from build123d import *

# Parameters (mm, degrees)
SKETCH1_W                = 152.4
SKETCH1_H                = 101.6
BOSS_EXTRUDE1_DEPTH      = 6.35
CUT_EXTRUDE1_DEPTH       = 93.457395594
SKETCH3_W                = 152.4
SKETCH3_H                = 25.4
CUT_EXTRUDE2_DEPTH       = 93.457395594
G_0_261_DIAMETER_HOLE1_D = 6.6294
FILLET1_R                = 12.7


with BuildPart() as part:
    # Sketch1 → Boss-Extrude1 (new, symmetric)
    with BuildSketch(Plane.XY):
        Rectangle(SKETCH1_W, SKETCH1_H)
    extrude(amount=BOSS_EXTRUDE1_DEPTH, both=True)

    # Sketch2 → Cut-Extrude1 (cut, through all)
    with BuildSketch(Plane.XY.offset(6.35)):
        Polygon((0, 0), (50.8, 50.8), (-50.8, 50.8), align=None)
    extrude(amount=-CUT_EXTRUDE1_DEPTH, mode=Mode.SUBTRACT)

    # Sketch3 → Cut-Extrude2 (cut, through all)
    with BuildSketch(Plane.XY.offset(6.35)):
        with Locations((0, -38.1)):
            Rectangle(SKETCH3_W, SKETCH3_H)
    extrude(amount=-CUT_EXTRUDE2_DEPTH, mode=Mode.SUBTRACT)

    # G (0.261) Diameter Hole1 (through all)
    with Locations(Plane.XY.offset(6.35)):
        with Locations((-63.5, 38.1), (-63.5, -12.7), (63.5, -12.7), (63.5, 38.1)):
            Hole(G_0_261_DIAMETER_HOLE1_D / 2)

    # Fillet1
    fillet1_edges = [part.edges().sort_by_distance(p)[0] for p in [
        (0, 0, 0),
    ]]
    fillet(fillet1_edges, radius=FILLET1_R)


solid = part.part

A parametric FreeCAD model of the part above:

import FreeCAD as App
import Part
import Sketcher
Q = App.Units.Quantity


def edges_at(feature, points):
    """Names of the edges that pass closest to the given points."""
    edges = feature.Shape.Edges
    near = lambda p: min(range(len(edges)), key=lambda i: edges[i].distToShape(Part.Vertex(*p))[0])
    return sorted({f"Edge{near(p) + 1}" for p in points})

doc = App.newDocument("Part")
body = doc.addObject("PartDesign::Body", "Body")

# Sketch on XY plane
sketch1 = body.newObject("Sketcher::SketchObject", "Sketch")
sketch1.AttachmentSupport = (doc.getObject("XY_Plane"), [""])
sketch1.MapMode = "FlatFace"
sketch1.addGeometry(Part.LineSegment(App.Vector(-76.2, 50.8, 0), App.Vector(-76.2, -50.8, 0)), False)
sketch1.addGeometry(Part.LineSegment(App.Vector(-76.2, -50.8, 0), App.Vector(76.2, -50.8, 0)), False)
sketch1.addGeometry(Part.LineSegment(App.Vector(76.2, -50.8, 0), App.Vector(76.2, 50.8, 0)), False)
sketch1.addGeometry(Part.LineSegment(App.Vector(76.2, 50.8, 0), App.Vector(-76.2, 50.8, 0)), False)
sketch1.addConstraint(Sketcher.Constraint("Coincident", 0, 2, 1, 1))
sketch1.addConstraint(Sketcher.Constraint("Coincident", 1, 2, 2, 1))
sketch1.addConstraint(Sketcher.Constraint("Coincident", 2, 2, 3, 1))
sketch1.addConstraint(Sketcher.Constraint("Coincident", 3, 2, 0, 1))
sketch1.addConstraint(Sketcher.Constraint("Vertical", 0))
sketch1.addConstraint(Sketcher.Constraint("Horizontal", 1))
sketch1.addConstraint(Sketcher.Constraint("Vertical", 2))
sketch1.addConstraint(Sketcher.Constraint("Horizontal", 3))
sketch1.addConstraint(Sketcher.Constraint("Symmetric", 0, 2, 2, 2, -1, 1))
sketch1.addConstraint(Sketcher.Constraint("DistanceX", 1, 1, 1, 2, Q("6 in")))
sketch1.addConstraint(Sketcher.Constraint("DistanceY", 0, 2, 0, 1, Q("4 in")))
pad1 = body.newObject("PartDesign::Pad", "Pad")
pad1.Profile = sketch1
pad1.Length = Q("0.5 in")
pad1.Midplane = True

# Sketch on XY plane
sketch2 = body.newObject("Sketcher::SketchObject", "Sketch001")
sketch2.AttachmentSupport = (doc.getObject("XY_Plane"), [""])
sketch2.MapMode = "FlatFace"
sketch2.AttachmentOffset = App.Placement(App.Vector(0, 0, 0.25 * 25.4), App.Rotation())
sketch2.addGeometry(Part.LineSegment(App.Vector(0, 0, 0), App.Vector(50.8, 50.8, 0)), False)
sketch2.addGeometry(Part.LineSegment(App.Vector(50.8, 50.8, 0), App.Vector(-50.8, 50.8, 0)), False)
sketch2.addGeometry(Part.LineSegment(App.Vector(-50.8, 50.8, 0), App.Vector(0, 0, 0)), False)
sketch2.addConstraint(Sketcher.Constraint("Coincident", 0, 2, 1, 1))
sketch2.addConstraint(Sketcher.Constraint("Coincident", 1, 2, 2, 1))
sketch2.addConstraint(Sketcher.Constraint("Coincident", 2, 2, 0, 1))
sketch2.addConstraint(Sketcher.Constraint("Horizontal", 1))
sketch2.addConstraint(Sketcher.Constraint("Coincident", 2, 2, -1, 1))
sketch2.addConstraint(Sketcher.Constraint("Perpendicular", 0, 2))
sketch2.addConstraint(Sketcher.Constraint("Equal", 0, 2))
sketch2.addConstraint(Sketcher.Constraint("DistanceX", 1, 2, 1, 1, Q("4 in")))
pocket1 = body.newObject("PartDesign::Pocket", "Pocket")
pocket1.Profile = sketch2
pocket1.Type = "ThroughAll"

# Sketch on XY plane
sketch3 = body.newObject("Sketcher::SketchObject", "Sketch002")
sketch3.AttachmentSupport = (doc.getObject("XY_Plane"), [""])
sketch3.MapMode = "FlatFace"
sketch3.AttachmentOffset = App.Placement(App.Vector(0, 0, 0.25 * 25.4), App.Rotation())
sketch3.addGeometry(Part.LineSegment(App.Vector(-76.2, -25.4, 0), App.Vector(-76.2, -50.8, 0)), False)
sketch3.addGeometry(Part.LineSegment(App.Vector(-76.2, -50.8, 0), App.Vector(76.2, -50.8, 0)), False)
sketch3.addGeometry(Part.LineSegment(App.Vector(76.2, -50.8, 0), App.Vector(76.2, -25.4, 0)), False)
sketch3.addGeometry(Part.LineSegment(App.Vector(76.2, -25.4, 0), App.Vector(-76.2, -25.4, 0)), False)
sketch3.addConstraint(Sketcher.Constraint("Coincident", 0, 2, 1, 1))
sketch3.addConstraint(Sketcher.Constraint("Coincident", 1, 2, 2, 1))
sketch3.addConstraint(Sketcher.Constraint("Coincident", 2, 2, 3, 1))
sketch3.addConstraint(Sketcher.Constraint("Coincident", 3, 2, 0, 1))
sketch3.addConstraint(Sketcher.Constraint("Vertical", 0))
sketch3.addConstraint(Sketcher.Constraint("Horizontal", 1))
sketch3.addConstraint(Sketcher.Constraint("Vertical", 2))
sketch3.addConstraint(Sketcher.Constraint("Horizontal", 3))
sketch3.addConstraint(Sketcher.Constraint("DistanceX", 1, 1, 1, 2, Q("6 in")))
sketch3.addConstraint(Sketcher.Constraint("DistanceY", 0, 2, 0, 1, Q("1 in")))
sketch3.addConstraint(Sketcher.Constraint("DistanceX", 0, 2, -1, 1, Q("3 in")))
sketch3.addConstraint(Sketcher.Constraint("DistanceY", 0, 2, -1, 1, Q("2 in")))
pocket2 = body.newObject("PartDesign::Pocket", "Pocket001")
pocket2.Profile = sketch3
pocket2.Type = "ThroughAll"

# Sketch on XY plane
sketch4 = body.newObject("Sketcher::SketchObject", "Sketch003")
sketch4.AttachmentSupport = (doc.getObject("XY_Plane"), [""])
sketch4.MapMode = "FlatFace"
sketch4.AttachmentOffset = App.Placement(App.Vector(0, 0, 0.25 * 25.4), App.Rotation())
sketch4.addGeometry(Part.Circle(App.Vector(-63.5, 38.1, 0), App.Vector(0, 0, 1), 3.3147), False)
sketch4.addGeometry(Part.Circle(App.Vector(-63.5, -12.7, 0), App.Vector(0, 0, 1), 3.3147), False)
sketch4.addGeometry(Part.Circle(App.Vector(63.5, -12.7, 0), App.Vector(0, 0, 1), 3.3147), False)
sketch4.addGeometry(Part.Circle(App.Vector(63.5, 38.1, 0), App.Vector(0, 0, 1), 3.3147), False)
sketch4.addConstraint(Sketcher.Constraint("Equal", 0, 1))
sketch4.addConstraint(Sketcher.Constraint("Equal", 1, 2))
sketch4.addConstraint(Sketcher.Constraint("Equal", 2, 3))
sketch4.addConstraint(Sketcher.Constraint("Symmetric", 1, 3, 2, 3, -2))
sketch4.addConstraint(Sketcher.Constraint("Symmetric", 0, 3, 3, 3, -2))
sketch4.addConstraint(Sketcher.Constraint("Vertical", 0, 3, 1, 3))
sketch4.addConstraint(Sketcher.Constraint("Diameter", 0, Q("0.261 in")))
sketch4.addConstraint(Sketcher.Constraint("DistanceY", 1, 3, 0, 3, Q("2 in")))
sketch4.addConstraint(Sketcher.Constraint("DistanceX", 1, 3, 2, 3, Q("5 in")))
sketch4.addConstraint(Sketcher.Constraint("DistanceY", -1, 1, 0, 3, Q("1.5 in")))
doc.recompute()
hole = body.newObject("PartDesign::Hole", "Hole")
hole.Profile = sketch4
hole.ThreadType = "None"
hole.Diameter = Q("0.261 in")
hole.DepthType = "ThroughAll"
doc.recompute()

fillet = body.newObject("PartDesign::Fillet", "Fillet")
fillet.Base = (hole, edges_at(hole, [(0, 0, 0)]))
fillet.Radius = Q("0.5 in")

doc.recompute()
